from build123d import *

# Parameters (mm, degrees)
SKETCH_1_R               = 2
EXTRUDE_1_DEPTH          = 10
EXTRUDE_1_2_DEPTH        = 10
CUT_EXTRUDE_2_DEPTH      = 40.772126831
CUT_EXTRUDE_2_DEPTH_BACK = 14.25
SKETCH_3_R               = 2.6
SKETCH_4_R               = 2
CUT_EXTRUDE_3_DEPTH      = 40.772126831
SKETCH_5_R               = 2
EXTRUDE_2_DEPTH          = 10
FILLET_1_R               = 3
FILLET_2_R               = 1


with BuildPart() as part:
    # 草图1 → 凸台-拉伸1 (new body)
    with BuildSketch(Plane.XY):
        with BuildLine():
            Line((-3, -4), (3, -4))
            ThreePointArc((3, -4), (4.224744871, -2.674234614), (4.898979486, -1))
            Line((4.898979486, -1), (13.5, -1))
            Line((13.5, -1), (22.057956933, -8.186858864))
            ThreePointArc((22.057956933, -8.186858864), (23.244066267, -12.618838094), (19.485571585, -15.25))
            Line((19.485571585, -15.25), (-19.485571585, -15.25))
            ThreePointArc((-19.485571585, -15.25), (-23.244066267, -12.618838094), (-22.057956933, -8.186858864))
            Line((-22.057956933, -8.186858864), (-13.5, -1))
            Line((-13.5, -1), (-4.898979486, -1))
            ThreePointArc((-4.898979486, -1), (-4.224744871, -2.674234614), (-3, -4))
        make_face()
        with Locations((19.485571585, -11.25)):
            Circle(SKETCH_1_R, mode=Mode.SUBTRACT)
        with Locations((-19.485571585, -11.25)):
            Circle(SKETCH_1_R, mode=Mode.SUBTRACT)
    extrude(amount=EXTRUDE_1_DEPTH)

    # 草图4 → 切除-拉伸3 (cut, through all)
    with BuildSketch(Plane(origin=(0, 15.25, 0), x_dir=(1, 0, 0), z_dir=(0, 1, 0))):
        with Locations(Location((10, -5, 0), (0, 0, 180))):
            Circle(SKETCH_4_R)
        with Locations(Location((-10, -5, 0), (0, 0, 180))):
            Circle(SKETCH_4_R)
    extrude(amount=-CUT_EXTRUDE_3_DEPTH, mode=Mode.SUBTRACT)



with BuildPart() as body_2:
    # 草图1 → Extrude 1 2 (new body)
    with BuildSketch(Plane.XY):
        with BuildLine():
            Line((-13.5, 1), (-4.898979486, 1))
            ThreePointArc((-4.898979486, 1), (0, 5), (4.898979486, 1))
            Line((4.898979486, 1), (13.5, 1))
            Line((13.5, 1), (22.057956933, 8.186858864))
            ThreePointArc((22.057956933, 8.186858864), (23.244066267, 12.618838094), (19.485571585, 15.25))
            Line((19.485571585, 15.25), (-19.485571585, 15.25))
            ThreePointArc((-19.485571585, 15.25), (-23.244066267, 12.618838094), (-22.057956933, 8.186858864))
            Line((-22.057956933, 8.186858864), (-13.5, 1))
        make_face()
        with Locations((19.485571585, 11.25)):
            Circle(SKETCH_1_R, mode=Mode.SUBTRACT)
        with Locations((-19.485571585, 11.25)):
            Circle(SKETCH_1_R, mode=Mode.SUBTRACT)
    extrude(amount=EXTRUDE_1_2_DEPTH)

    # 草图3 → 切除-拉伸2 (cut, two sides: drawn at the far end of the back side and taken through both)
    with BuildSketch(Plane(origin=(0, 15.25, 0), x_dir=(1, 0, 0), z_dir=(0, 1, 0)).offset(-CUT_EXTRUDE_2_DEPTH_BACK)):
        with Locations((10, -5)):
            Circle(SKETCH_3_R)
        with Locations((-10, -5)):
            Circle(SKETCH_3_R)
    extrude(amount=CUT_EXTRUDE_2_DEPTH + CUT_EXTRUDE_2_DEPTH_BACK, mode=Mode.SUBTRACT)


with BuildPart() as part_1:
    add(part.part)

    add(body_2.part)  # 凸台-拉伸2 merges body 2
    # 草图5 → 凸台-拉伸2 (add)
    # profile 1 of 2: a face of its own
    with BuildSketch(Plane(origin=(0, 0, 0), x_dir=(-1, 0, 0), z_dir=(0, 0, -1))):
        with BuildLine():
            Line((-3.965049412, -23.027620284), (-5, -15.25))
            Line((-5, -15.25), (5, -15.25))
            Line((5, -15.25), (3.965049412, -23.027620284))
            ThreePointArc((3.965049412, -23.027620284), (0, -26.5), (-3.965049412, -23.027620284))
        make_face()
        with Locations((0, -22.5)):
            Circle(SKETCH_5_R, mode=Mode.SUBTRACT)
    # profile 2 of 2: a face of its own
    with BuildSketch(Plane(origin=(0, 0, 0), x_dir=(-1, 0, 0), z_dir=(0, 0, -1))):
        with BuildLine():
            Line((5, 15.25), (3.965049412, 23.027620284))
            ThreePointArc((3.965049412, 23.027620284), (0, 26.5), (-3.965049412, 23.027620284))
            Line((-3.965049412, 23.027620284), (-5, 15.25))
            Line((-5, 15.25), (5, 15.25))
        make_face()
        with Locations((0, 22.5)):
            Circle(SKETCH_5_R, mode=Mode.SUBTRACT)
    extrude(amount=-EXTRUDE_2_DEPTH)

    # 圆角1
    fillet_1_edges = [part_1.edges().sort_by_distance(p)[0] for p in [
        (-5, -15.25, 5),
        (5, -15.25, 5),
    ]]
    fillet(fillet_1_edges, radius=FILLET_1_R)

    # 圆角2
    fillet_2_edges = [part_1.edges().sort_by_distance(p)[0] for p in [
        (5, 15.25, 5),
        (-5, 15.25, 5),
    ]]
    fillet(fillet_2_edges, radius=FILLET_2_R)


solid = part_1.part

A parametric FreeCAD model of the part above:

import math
import FreeCAD as App
import Part
import Sketcher
from FreeCAD import Vector


def edges_at(feature, points):
    """Names of the edges that pass closest to the given points."""
    edges = feature.Shape.Edges
    near = lambda p: min(range(len(edges)), key=lambda i: edges[i].distToShape(Part.Vertex(*p))[0])
    return sorted({f"Edge{near(p) + 1}" for p in points})

doc = App.newDocument("Part")
params = doc.addObject("Spreadsheet::Sheet", "Params")
for row, (alias, value) in enumerate([
    ("sketch1_diameter", "4 mm"),
    ("sketch1_radius", "5 mm"),
    ("sketch1_radius2", "4 mm"),
    ("sketch1_width", "6 mm"),
    ("pad1_length", "10 mm"),
    ("sketch2_diameter", "4 mm"),
    ("sketch3_diameter", "4 mm"),
    ("sketch3_radius", "5 mm"),
    ("sketch3_radius2", "4 mm"),
    ("pad2_length", "10 mm"),
    ("sketch4_diameter", "5.2 mm"),
    ("sketch5_diameter", "4 mm"),
    ("sketch5_radius", "4 mm"),
    ("sketch5_width", "10 mm"),
    ("pad3_length", "10 mm"),
    ("fillet_radius", "3 mm"),
    ("fillet2_radius", "1 mm"),
], start=1):
    params.set(f"A{row}", alias)
    params.set(f"B{row}", "=" + value)
    params.setAlias(f"B{row}", alias)

body = doc.addObject("PartDesign::Body", "Body")

# Sketch on XY plane
sketch1 = body.newObject("Sketcher::SketchObject", "Sketch")
sketch1.AttachmentSupport = (doc.getObject("XY_Plane"), [""])
sketch1.MapMode = "FlatFace"
sketch1.addGeometry([
    Part.LineSegment(Vector(3, -4, 0), Vector(-3, -4, 0)),  # 0
    Part.ArcOfCircle(Part.Circle(Vector(0, 0, 0), Vector(0, 0, 1), 5), math.radians(-168.463041), math.radians(-126.869898)),  # 1
    Part.LineSegment(Vector(-4.898979, -1, 0), Vector(-13.5, -1, 0)),  # 2
    Part.LineSegment(Vector(-13.5, -1, 0), Vector(-22.057957, -8.186859, 0)),  # 3
    Part.ArcOfCircle(Part.Circle(Vector(-19.485572, -11.25, 0), Vector(0, 0, 1), 4), math.radians(130.023095), math.radians(270)),  # 4
    Part.LineSegment(Vector(-19.485572, -15.25, 0), Vector(19.485572, -15.25, 0)),  # 5
    Part.ArcOfCircle(Part.Circle(Vector(19.485572, -11.25, 0), Vector(0, 0, 1), 4), math.radians(-90), math.radians(49.976905)),  # 6
    Part.LineSegment(Vector(22.057957, -8.186859, 0), Vector(13.5, -1, 0)),  # 7
    Part.LineSegment(Vector(13.5, -1, 0), Vector(4.898979, -1, 0)),  # 8
    Part.ArcOfCircle(Part.Circle(Vector(0, 0, 0), Vector(0, 0, 1), 5), math.radians(-53.130102), math.radians(-11.536959)),  # 9
    Part.Circle(Vector(19.485572, -11.25, 0), Vector(0, 0, 1), 2),  # 10
    Part.Circle(Vector(-19.485572, -11.25, 0), Vector(0, 0, 1), 2),  # 11
], False)
sketch1.addConstraint([
    Sketcher.Constraint("Coincident", 0, 2, 1, 2),
    Sketcher.Constraint("Coincident", 1, 1, 2, 1),
    Sketcher.Constraint("Coincident", 2, 2, 3, 1),
    Sketcher.Constraint("Tangent", 3, 2, 4, 1),
    Sketcher.Constraint("Tangent", 4, 2, 5, 1),
    Sketcher.Constraint("Tangent", 5, 2, 6, 1),
    Sketcher.Constraint("Tangent", 6, 2, 7, 1),
    Sketcher.Constraint("Coincident", 7, 2, 8, 1),
    Sketcher.Constraint("Coincident", 8, 2, 9, 2),
    Sketcher.Constraint("Coincident", 9, 1, 0, 1),
    Sketcher.Constraint("Horizontal", 0),
    Sketcher.Constraint("Horizontal", 2),
    Sketcher.Constraint("Horizontal", 5),
    Sketcher.Constraint("Horizontal", 8),
    Sketcher.Constraint("Coincident", 1, 3, -1, 1),
    Sketcher.Constraint("Coincident", 9, 3, -1, 1),
    Sketcher.Constraint("Coincident", 10, 3, 6, 3),
    Sketcher.Constraint("Coincident", 11, 3, 4, 3),
    Sketcher.Constraint("Equal", 4, 6),
    Sketcher.Constraint("Equal", 1, 9),
    Sketcher.Constraint("Equal", 10, 11),
    Sketcher.Constraint("Symmetric", 3, 2, 6, 2, -2),
    Sketcher.Constraint("Horizontal", 2, 2, 7, 2),
    Sketcher.Constraint("Diameter", 10, 4.0),
    Sketcher.Constraint("Radius", 1, 5.0),
    Sketcher.Constraint("Radius", 4, 4.0),
    Sketcher.Constraint("DistanceX", 0, 2, 0, 1, 6.0),
    Sketcher.Constraint("DistanceY", 1, 1, -1, 1, 1.0),
    Sketcher.Constraint("DistanceX", 2, 2, -1, 1, 13.5),
    Sketcher.Constraint("DistanceY", 4, 3, -1, 1, 11.25),
    Sketcher.Constraint("Distance", 3, 11.1754),
])
sketch1.setExpression("Constraints[23]", "Params.sketch1_diameter")
sketch1.setExpression("Constraints[24]", "Params.sketch1_radius")
sketch1.setExpression("Constraints[25]", "Params.sketch1_radius2")
sketch1.setExpression("Constraints[26]", "Params.sketch1_width")
pad1 = body.newObject("PartDesign::Pad", "Pad")
pad1.Profile = sketch1
pad1.setExpression("Length", "Params.pad1_length")

# Sketch on XZ plane
sketch2 = body.newObject("Sketcher::SketchObject", "Sketch001")
sketch2.AttachmentSupport = (doc.getObject("XZ_Plane"), [""])
sketch2.MapMode = "FlatFace"
sketch2.AttachmentOffset = App.Placement(Vector(0, 0, -15.25), App.Rotation())
sketch2.addGeometry([
    Part.Circle(Vector(10, 5, 0), Vector(0, 0, 1), 2),
    Part.Circle(Vector(-10, 5, 0), Vector(0, 0, 1), 2),
], False)
sketch2.addConstraint([
    Sketcher.Constraint("Equal", 0, 1),
    Sketcher.Constraint("Symmetric", 0, 3, 1, 3, -2),
    Sketcher.Constraint("Diameter", 0, 4.0),
    Sketcher.Constraint("DistanceX", -1, 1, 0, 3, 10.0),
    Sketcher.Constraint("DistanceY", -1, 1, 0, 3, 5.0),
])
sketch2.setExpression("Constraints[2]", "Params.sketch2_diameter")
pocket1 = body.newObject("PartDesign::Pocket", "Pocket")
pocket1.Profile = sketch2
pocket1.Type = "ThroughAll"
pocket1.Reversed = True
body2 = doc.addObject("PartDesign::Body", "Body001")

# Sketch on XY plane
sketch3 = body2.newObject("Sketcher::SketchObject", "Sketch002")
sketch3.AttachmentSupport = (doc.getObject("XY_Plane001"), [""])
sketch3.MapMode = "FlatFace"
sketch3.addGeometry([
    Part.LineSegment(Vector(-13.5, 1, 0), Vector(-4.898979, 1, 0)),  # 0
    Part.ArcOfCircle(Part.Circle(Vector(0, 0, 0), Vector(0, 0, 1), 5), math.radians(11.536959), math.radians(168.463041)),  # 1
    Part.LineSegment(Vector(4.898979, 1, 0), Vector(13.5, 1, 0)),  # 2
    Part.LineSegment(Vector(13.5, 1, 0), Vector(22.057957, 8.186859, 0)),  # 3
    Part.ArcOfCircle(Part.Circle(Vector(19.485572, 11.25, 0), Vector(0, 0, 1), 4), math.radians(-49.976905), math.radians(90)),  # 4
    Part.LineSegment(Vector(19.485572, 15.25, 0), Vector(-19.485572, 15.25, 0)),  # 5
    Part.ArcOfCircle(Part.Circle(Vector(-19.485572, 11.25, 0), Vector(0, 0, 1), 4), math.radians(90), math.radians(229.976905)),  # 6
    Part.LineSegment(Vector(-22.057957, 8.186859, 0), Vector(-13.5, 1, 0)),  # 7
    Part.Circle(Vector(-19.485572, 11.25, 0), Vector(0, 0, 1), 2),  # 8
    Part.Circle(Vector(19.485572, 11.25, 0), Vector(0, 0, 1), 2),  # 9
], False)
sketch3.addConstraint([
    Sketcher.Constraint("Coincident", 0, 2, 1, 2),
    Sketcher.Constraint("Coincident", 1, 1, 2, 1),
    Sketcher.Constraint("Coincident", 2, 2, 3, 1),
    Sketcher.Constraint("Tangent", 3, 2, 4, 1),
    Sketcher.Constraint("Tangent", 4, 2, 5, 1),
    Sketcher.Constraint("Tangent", 5, 2, 6, 1),
    Sketcher.Constraint("Tangent", 6, 2, 7, 1),
    Sketcher.Constraint("Coincident", 7, 2, 0, 1),
    Sketcher.Constraint("Horizontal", 0),
    Sketcher.Constraint("Horizontal", 2),
    Sketcher.Constraint("Horizontal", 5),
    Sketcher.Constraint("Coincident", 1, 3, -1, 1),
    Sketcher.Constraint("Coincident", 8, 3, 6, 3),
    Sketcher.Constraint("Coincident", 9, 3, 4, 3),
    Sketcher.Constraint("Equal", 4, 6),
    Sketcher.Constraint("Equal", 8, 9),
    Sketcher.Constraint("Symmetric", 3, 2, 6, 2, -2),
    Sketcher.Constraint("Horizontal", 0, 2, 1, 1),
    Sketcher.Constraint("Diameter", 8, 4.0),
    Sketcher.Constraint("Radius", 1, 5.0),
    Sketcher.Constraint("Radius", 4, 4.0),
    Sketcher.Constraint("DistanceY", -1, 1, 0, 2, 1.0),
    Sketcher.Constraint("DistanceX", -1, 1, 2, 2, 13.5),
    Sketcher.Constraint("DistanceY", -1, 1, 4, 3, 11.25),
    Sketcher.Constraint("Distance", 3, 11.1754),
])
sketch3.setExpression("Constraints[18]", "Params.sketch3_diameter")
sketch3.setExpression("Constraints[19]", "Params.sketch3_radius")
sketch3.setExpression("Constraints[20]", "Params.sketch3_radius2")
pad2 = body2.newObject("PartDesign::Pad", "Pad001")
pad2.Profile = sketch3
pad2.setExpression("Length", "Params.pad2_length")

# Sketch on XZ plane
sketch4 = body2.newObject("Sketcher::SketchObject", "Sketch003")
sketch4.AttachmentSupport = (doc.getObject("XZ_Plane001"), [""])
sketch4.MapMode = "FlatFace"
sketch4.AttachmentOffset = App.Placement(Vector(0, 0, -15.25), App.Rotation())
sketch4.addGeometry([
    Part.Circle(Vector(10, 5, 0), Vector(0, 0, 1), 2.6),
    Part.Circle(Vector(-10, 5, 0), Vector(0, 0, 1), 2.6),
], False)
sketch4.addConstraint([
    Sketcher.Constraint("Equal", 0, 1),
    Sketcher.Constraint("Symmetric", 0, 3, 1, 3, -2),
    Sketcher.Constraint("Diameter", 0, 5.2),
    Sketcher.Constraint("DistanceX", -1, 1, 0, 3, 10.0),
    Sketcher.Constraint("DistanceY", -1, 1, 0, 3, 5.0),
])
sketch4.setExpression("Constraints[2]", "Params.sketch4_diameter")
pocket2 = body2.newObject("PartDesign::Pocket", "Pocket001")
pocket2.Profile = sketch4
pocket2.Type = "ThroughAll"
pocket2.Midplane = True
body.AllowCompound = True
doc.recompute()

boolean = body.newObject("PartDesign::Boolean", "Boolean")
boolean.Type = "Fuse"
boolean.addObjects([body2])

# Sketch on XY plane
sketch5 = body.newObject("Sketcher::SketchObject", "Sketch004")
sketch5.AttachmentSupport = (doc.getObject("XY_Plane"), [""])
sketch5.MapMode = "FlatFace"
sketch5.addGeometry([
    Part.LineSegment(Vector(5, -15.25, 0), Vector(3.965049, -23.02762, 0)),  # 0
    Part.ArcOfCircle(Part.Circle(Vector(0, -22.5, 0), Vector(0, 0, 1), 4), math.radians(-172.420307), math.radians(-7.579693)),  # 1
    Part.LineSegment(Vector(-3.965049, -23.02762, 0), Vector(-5, -15.25, 0)),  # 2
    Part.LineSegment(Vector(-5, -15.25, 0), Vector(5, -15.25, 0)),  # 3
    Part.Circle(Vector(0, -22.5, 0), Vector(0, 0, 1), 2),  # 4
    Part.LineSegment(Vector(-5, 15.25, 0), Vector(-3.965049, 23.02762, 0)),  # 5
    Part.ArcOfCircle(Part.Circle(Vector(0, 22.5, 0), Vector(0, 0, 1), 4), math.radians(7.579693), math.radians(172.420307)),  # 6
    Part.LineSegment(Vector(3.965049, 23.02762, 0), Vector(5, 15.25, 0)),  # 7
    Part.LineSegment(Vector(5, 15.25, 0), Vector(-5, 15.25, 0)),  # 8
    Part.Circle(Vector(0, 22.5, 0), Vector(0, 0, 1), 2),  # 9
], False)
sketch5.addConstraint([
    Sketcher.Constraint("Tangent", 0, 2, 1, 2),
    Sketcher.Constraint("Tangent", 1, 1, 2, 1),
    Sketcher.Constraint("Coincident", 2, 2, 3, 1),
    Sketcher.Constraint("Coincident", 3, 2, 0, 1),
    Sketcher.Constraint("Tangent", 5, 2, 6, 2),
    Sketcher.Constraint("Tangent", 6, 1, 7, 1),
    Sketcher.Constraint("Coincident", 7, 2, 8, 1),
    Sketcher.Constraint("Coincident", 8, 2, 5, 1),
    Sketcher.Constraint("Horizontal", 3),
    Sketcher.Constraint("Horizontal", 8),
    Sketcher.Constraint("Coincident", 4, 3, 1, 3),
    Sketcher.Constraint("Coincident", 9, 3, 6, 3),
    Sketcher.Constraint("Equal", 1, 6),
    Sketcher.Constraint("Equal", 4, 9),
    Sketcher.Constraint("Symmetric", 1, 3, 6, 3, -1, 1),
    Sketcher.Constraint("Symmetric", 2, 2, 7, 2, -1, 1),
    Sketcher.Constraint("Symmetric", 0, 2, 1, 1, -2),
    Sketcher.Constraint("Parallel", 0, 5),
    Sketcher.Constraint("Diameter", 4, 4.0),
    Sketcher.Constraint("Radius", 1, 4.0),
    Sketcher.Constraint("DistanceX", 3, 1, 3, 2, 10.0),
    Sketcher.Constraint("DistanceY", 1, 3, 6, 3, 45.0),
    Sketcher.Constraint("DistanceY", 3, 2, 7, 2, 30.5),
])
sketch5.setExpression("Constraints[18]", "Params.sketch5_diameter")
sketch5.setExpression("Constraints[19]", "Params.sketch5_radius")
sketch5.setExpression("Constraints[20]", "Params.sketch5_width")
pad3 = body.newObject("PartDesign::Pad", "Pad002")
pad3.Profile = sketch5
pad3.setExpression("Length", "Params.pad3_length")
doc.recompute()

fillet = body.newObject("PartDesign::Fillet", "Fillet")
fillet.Base = (pad3, edges_at(pad3, [(-5, -15.25, 5), (5, -15.25, 5)]))
fillet.setExpression("Radius", "Params.fillet_radius")
doc.recompute()

fillet2 = body.newObject("PartDesign::Fillet", "Fillet001")
fillet2.Base = (fillet, edges_at(fillet, [(5, 15.25, 5), (-5, 15.25, 5)]))
fillet2.setExpression("Radius", "Params.fillet2_radius")

doc.recompute()
